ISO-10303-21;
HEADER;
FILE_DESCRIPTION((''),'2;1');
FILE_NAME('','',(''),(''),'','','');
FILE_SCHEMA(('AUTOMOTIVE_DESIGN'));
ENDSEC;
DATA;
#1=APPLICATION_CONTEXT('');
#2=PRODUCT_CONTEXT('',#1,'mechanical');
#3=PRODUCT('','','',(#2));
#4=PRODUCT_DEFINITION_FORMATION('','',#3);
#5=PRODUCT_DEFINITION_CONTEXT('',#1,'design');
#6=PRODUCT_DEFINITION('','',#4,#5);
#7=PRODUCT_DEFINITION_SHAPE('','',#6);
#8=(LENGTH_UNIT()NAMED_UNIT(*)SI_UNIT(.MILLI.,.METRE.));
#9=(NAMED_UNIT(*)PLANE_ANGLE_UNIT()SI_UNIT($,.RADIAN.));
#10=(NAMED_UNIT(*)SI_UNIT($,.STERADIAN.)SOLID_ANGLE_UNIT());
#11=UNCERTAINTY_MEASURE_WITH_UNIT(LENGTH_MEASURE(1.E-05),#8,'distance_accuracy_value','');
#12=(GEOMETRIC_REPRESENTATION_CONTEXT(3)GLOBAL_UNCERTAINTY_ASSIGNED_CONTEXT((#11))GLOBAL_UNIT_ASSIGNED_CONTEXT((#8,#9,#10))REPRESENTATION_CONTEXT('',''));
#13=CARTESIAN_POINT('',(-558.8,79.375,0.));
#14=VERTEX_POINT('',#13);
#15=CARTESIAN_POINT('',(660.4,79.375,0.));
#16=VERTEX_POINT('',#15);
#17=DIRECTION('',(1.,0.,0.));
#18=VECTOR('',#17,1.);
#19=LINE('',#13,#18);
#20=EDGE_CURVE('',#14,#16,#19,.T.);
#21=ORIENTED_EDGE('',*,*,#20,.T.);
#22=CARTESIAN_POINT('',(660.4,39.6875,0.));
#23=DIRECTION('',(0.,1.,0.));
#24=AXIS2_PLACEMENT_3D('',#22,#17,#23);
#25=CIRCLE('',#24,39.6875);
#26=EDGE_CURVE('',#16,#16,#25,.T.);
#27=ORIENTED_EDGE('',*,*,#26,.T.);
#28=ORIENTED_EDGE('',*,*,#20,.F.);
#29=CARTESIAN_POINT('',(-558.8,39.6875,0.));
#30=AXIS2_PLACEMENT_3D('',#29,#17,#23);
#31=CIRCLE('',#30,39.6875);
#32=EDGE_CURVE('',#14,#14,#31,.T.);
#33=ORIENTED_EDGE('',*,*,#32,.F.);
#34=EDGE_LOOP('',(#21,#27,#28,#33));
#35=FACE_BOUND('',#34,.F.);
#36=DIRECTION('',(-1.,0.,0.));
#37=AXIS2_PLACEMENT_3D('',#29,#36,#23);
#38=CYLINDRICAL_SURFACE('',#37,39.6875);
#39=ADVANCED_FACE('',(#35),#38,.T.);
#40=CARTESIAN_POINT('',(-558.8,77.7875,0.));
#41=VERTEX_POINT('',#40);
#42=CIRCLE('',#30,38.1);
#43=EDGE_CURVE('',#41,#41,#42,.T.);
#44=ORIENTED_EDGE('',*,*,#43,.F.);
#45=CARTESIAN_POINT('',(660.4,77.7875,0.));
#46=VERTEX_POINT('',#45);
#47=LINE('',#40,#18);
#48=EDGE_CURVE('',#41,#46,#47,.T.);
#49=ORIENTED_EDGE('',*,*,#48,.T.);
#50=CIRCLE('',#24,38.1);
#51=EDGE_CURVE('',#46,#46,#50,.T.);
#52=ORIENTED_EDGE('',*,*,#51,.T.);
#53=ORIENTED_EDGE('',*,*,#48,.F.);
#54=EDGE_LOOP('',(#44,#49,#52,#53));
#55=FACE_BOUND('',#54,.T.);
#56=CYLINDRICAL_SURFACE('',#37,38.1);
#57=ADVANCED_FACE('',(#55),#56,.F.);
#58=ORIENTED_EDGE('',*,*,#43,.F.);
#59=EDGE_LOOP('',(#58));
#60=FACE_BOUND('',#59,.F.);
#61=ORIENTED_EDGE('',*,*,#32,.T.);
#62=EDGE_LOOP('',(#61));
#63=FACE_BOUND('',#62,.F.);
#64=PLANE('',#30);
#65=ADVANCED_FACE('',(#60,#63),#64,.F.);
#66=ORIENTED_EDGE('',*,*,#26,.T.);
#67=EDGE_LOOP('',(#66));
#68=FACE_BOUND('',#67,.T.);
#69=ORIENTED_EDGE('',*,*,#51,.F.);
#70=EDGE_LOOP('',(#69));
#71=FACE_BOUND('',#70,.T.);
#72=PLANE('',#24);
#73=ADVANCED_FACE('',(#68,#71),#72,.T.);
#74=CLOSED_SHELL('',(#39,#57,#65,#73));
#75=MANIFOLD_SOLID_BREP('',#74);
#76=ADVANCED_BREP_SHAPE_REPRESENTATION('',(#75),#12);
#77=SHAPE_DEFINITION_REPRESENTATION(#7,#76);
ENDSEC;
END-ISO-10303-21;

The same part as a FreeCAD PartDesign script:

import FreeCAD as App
import Part
import Sketcher
from FreeCAD import Vector
Q = App.Units.Quantity

doc = App.newDocument("Part")
params = doc.addObject("Spreadsheet::Sheet", "Params")
for row, (alias, value) in enumerate([
    ("sketch1_diameter", "3 in"),
    ("sketch1_diameter2", "3.125 in"),
    ("pad1_length", "48 in"),
], start=1):
    params.set(f"A{row}", alias)
    params.set(f"B{row}", "=" + value)
    params.setAlias(f"B{row}", alias)

body = doc.addObject("PartDesign::Body", "Body")

sketch1 = doc.addObject("Sketcher::SketchObject", "Sketch")
body.addObject(sketch1)
sketch1.AttachmentSupport = (doc.YZ_Plane, [""])
sketch1.MapMode = "FlatFace"
sketch1.AttachmentOffset = App.Placement(Vector(0, 0, -22 * 25.4), App.Rotation())
sketch1.addGeometry([
    Part.Circle(Vector(40, 0, 0), Vector(0, 0, 1), 40),
    Part.Circle(Vector(40, 0, 0), Vector(0, 0, 1), 38),
], False)
sketch1.addConstraint([
    Sketcher.Constraint("Coincident", 1, 3, 0, 3),
    Sketcher.Constraint("PointOnObject", 0, 3, -1),
    Sketcher.Constraint("Diameter", 1, Q("3 in")),
    Sketcher.Constraint("Diameter", 0, Q("3.125 in")),
    Sketcher.Constraint("DistanceX", -1, 1, 0, 3, Q("1.5625 in")),
])
sketch1.setExpression("Constraints[2]", "Params.sketch1_diameter")
sketch1.setExpression("Constraints[3]", "Params.sketch1_diameter2")
pad1 = doc.addObject("PartDesign::Pad", "Pad")
body.addObject(pad1)
pad1.Profile = sketch1
pad1.setExpression("Length", "Params.pad1_length")

doc.recompute()
